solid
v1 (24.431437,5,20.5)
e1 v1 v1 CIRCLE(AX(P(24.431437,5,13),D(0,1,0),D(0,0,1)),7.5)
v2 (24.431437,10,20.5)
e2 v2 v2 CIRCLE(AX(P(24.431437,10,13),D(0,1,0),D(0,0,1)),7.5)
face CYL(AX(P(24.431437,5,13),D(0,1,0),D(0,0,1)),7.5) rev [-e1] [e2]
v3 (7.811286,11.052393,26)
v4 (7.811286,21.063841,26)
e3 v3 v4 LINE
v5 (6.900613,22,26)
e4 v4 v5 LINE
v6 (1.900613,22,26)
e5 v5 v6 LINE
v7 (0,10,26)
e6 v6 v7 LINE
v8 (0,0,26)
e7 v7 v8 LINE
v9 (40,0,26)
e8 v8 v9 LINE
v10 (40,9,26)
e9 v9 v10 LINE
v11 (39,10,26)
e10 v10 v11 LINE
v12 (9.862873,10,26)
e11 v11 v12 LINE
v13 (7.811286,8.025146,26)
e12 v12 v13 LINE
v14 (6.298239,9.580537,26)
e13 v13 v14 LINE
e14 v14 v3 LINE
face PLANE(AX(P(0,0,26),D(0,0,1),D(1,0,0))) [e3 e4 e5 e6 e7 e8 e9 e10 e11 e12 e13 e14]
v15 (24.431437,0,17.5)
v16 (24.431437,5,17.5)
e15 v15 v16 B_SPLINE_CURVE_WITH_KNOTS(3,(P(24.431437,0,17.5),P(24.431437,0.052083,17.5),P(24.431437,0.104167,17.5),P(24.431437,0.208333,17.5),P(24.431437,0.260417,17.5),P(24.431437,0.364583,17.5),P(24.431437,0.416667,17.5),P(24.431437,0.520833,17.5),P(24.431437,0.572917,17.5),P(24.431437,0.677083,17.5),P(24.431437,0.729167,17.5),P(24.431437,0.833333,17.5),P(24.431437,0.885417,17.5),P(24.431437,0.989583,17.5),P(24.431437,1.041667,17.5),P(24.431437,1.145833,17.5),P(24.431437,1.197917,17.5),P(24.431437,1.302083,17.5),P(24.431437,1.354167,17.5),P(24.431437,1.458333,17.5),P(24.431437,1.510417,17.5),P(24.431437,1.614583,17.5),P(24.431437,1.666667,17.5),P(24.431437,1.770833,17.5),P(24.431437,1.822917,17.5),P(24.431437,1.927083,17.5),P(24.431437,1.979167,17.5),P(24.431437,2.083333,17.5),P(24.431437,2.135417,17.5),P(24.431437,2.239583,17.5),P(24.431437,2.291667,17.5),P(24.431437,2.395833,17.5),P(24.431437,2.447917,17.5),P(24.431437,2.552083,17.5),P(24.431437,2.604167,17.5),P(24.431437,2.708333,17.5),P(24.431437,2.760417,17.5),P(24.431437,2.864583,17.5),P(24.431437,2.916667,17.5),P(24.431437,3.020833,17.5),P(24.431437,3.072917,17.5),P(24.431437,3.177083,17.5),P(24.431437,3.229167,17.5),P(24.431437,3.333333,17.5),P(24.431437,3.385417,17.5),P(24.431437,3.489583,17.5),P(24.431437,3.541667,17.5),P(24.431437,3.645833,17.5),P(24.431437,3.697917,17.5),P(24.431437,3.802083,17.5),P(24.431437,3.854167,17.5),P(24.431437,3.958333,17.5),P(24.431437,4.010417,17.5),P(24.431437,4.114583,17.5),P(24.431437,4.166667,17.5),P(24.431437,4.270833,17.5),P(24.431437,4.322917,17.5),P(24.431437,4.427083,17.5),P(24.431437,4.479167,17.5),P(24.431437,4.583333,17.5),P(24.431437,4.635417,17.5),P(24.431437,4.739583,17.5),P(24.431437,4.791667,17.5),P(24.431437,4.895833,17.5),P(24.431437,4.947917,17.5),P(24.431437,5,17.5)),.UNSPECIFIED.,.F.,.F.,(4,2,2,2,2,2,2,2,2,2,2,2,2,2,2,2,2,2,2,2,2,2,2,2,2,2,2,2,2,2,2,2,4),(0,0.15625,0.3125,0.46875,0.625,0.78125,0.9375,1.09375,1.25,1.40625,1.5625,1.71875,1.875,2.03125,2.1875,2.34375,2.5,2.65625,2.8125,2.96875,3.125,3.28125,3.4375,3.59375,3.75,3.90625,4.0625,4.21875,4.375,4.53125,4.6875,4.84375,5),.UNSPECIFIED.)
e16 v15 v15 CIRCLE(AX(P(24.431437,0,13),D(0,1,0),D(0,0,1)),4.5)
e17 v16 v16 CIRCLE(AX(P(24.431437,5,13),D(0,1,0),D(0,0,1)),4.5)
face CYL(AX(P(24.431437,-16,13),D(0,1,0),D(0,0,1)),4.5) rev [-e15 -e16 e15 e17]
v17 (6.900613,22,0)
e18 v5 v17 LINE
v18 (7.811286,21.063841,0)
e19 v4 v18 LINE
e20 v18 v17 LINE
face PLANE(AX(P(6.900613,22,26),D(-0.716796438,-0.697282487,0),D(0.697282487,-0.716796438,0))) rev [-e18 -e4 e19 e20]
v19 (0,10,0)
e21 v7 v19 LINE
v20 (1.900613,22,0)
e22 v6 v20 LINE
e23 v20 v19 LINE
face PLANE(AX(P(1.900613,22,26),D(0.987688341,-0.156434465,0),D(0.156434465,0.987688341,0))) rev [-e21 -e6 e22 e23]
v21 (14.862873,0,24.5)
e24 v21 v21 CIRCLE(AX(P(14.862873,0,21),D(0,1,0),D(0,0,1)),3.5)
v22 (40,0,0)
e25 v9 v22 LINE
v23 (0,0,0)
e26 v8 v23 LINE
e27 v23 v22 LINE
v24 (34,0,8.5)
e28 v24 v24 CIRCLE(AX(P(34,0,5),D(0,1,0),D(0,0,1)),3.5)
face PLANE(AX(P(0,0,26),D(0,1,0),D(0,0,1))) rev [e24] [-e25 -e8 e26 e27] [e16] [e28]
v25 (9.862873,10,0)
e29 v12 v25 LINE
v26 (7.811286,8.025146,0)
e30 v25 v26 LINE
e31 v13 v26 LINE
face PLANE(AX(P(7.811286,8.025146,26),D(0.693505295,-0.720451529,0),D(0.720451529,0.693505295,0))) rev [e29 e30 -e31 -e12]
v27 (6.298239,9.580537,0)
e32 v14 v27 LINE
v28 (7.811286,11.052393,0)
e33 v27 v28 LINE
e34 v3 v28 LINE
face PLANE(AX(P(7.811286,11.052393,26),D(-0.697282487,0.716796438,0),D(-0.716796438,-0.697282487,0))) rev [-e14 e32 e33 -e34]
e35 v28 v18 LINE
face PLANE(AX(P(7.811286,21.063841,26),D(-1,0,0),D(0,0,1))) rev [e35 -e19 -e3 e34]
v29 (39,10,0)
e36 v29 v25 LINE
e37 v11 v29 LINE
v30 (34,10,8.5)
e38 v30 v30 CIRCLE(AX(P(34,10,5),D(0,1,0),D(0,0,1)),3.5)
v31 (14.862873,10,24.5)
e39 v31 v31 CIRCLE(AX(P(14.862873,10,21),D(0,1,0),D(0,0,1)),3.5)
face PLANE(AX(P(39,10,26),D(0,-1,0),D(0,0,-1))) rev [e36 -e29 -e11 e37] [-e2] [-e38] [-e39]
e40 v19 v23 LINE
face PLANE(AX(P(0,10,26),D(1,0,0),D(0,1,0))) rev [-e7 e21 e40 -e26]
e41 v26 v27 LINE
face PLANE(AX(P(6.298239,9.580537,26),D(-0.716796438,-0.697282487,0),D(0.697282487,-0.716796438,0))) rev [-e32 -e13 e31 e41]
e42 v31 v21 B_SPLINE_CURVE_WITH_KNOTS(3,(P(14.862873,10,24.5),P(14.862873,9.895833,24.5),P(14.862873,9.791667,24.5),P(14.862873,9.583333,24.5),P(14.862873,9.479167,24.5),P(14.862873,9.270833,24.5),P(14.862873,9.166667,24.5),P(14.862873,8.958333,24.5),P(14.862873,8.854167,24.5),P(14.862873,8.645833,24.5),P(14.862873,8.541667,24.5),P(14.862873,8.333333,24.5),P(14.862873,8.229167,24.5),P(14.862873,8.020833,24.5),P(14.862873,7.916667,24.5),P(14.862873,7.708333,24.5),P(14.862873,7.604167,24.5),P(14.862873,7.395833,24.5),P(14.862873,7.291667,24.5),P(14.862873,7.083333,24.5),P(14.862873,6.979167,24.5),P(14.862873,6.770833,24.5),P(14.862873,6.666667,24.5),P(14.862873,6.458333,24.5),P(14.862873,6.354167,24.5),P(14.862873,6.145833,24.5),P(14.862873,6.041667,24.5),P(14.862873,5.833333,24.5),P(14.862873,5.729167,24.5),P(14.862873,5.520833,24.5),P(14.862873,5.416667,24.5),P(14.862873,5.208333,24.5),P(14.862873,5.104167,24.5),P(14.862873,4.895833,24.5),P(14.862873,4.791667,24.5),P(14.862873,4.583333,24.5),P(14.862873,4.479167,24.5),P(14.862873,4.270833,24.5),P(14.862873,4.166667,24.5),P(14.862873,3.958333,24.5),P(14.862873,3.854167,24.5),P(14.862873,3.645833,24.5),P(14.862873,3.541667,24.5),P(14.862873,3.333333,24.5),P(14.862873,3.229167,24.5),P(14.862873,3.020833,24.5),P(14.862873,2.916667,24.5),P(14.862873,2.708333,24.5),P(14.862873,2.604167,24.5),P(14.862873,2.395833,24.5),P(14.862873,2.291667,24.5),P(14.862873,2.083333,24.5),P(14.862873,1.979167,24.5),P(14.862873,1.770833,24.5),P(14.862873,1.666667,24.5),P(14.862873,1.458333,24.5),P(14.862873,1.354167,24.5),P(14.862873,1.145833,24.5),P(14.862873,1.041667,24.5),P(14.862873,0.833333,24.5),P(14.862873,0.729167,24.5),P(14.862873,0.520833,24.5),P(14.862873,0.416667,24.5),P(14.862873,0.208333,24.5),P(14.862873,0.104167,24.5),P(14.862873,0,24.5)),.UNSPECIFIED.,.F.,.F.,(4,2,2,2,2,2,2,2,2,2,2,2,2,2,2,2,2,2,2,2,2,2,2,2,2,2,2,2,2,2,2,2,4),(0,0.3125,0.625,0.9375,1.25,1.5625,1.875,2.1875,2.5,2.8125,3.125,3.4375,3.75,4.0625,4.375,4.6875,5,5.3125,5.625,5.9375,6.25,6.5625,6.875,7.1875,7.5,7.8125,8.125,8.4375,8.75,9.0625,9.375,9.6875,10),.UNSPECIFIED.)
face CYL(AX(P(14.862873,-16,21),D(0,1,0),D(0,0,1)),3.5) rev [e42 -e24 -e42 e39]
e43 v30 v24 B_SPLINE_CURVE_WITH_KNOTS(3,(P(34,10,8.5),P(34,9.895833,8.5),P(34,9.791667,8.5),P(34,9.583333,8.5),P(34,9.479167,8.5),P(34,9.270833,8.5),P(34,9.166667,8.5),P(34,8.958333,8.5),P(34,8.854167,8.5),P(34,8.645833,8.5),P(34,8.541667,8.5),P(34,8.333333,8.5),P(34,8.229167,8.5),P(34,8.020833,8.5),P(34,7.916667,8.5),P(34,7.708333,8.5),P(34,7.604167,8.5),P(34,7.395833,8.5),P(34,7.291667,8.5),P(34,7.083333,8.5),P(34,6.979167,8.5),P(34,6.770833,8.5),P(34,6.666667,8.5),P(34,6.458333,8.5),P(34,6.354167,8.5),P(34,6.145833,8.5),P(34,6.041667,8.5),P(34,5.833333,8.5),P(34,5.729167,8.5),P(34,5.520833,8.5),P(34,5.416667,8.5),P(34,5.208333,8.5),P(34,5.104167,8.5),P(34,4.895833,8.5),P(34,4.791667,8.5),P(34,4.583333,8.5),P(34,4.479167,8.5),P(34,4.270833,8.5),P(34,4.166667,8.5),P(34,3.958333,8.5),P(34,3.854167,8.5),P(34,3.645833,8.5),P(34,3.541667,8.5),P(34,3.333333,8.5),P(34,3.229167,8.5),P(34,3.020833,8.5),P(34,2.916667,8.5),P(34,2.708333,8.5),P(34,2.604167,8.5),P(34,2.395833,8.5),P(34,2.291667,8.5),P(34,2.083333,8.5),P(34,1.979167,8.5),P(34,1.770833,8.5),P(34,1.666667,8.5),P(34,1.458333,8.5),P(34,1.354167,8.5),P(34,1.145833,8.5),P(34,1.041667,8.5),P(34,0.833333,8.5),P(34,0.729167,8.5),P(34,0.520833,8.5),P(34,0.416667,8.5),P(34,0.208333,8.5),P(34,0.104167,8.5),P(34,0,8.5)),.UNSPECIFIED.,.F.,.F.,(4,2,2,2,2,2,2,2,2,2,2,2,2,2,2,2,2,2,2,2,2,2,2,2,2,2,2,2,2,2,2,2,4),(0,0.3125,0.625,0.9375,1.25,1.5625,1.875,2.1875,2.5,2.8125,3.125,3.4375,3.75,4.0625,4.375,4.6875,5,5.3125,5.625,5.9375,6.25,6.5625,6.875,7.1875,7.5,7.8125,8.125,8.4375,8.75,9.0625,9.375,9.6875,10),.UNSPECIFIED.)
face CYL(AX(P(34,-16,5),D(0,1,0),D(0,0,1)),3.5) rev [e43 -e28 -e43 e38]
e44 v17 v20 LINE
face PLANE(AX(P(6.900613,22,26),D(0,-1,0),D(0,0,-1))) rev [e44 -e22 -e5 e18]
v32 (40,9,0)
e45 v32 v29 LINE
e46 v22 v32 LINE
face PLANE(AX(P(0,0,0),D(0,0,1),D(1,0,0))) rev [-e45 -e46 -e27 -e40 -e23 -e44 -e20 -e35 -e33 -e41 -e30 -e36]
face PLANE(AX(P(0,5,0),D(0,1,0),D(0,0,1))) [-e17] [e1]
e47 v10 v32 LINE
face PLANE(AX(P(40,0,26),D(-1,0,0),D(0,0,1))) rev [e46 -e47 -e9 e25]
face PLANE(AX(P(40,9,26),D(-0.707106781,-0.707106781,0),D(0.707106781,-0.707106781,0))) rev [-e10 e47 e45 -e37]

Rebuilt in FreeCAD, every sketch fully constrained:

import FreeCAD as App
import Part
import Sketcher

V = App.Vector
Q = App.Units.Quantity


def add_polygon(sketch, points):
    """Adds a closed chain of lines whose ends are joined by coincident constraints."""
    first, n = sketch.GeometryCount, len(points)
    for a, b in zip(points, points[1:] + points[:1]):
        sketch.addGeometry(Part.LineSegment(App.Vector(*a, 0), App.Vector(*b, 0)), False)
    for i in range(n):
        sketch.addConstraint(Sketcher.Constraint("Coincident", first + i, 2, first + (i + 1) % n, 1))

doc = App.newDocument("Part")
body = doc.addObject("PartDesign::Body", "Body")

sketch1 = body.newObject("Sketcher::SketchObject", "Sketch")
sketch1.AttachmentSupport = (doc.getObject("XY_Plane"), [""])
sketch1.MapMode = "FlatFace"
add_polygon(sketch1, [(0, 0), (40, 0), (40, 9), (39, 10), (9.862873, 10), (7.811286, 8.025146), (6.298239, 9.580537), (7.811286, 11.052393), (7.811286, 21.063841), (6.900613, 22), (1.900613, 22), (0, 10)])
sketch1.addConstraint([
    Sketcher.Constraint("Horizontal", 0),
    Sketcher.Constraint("Vertical", 1),
    Sketcher.Constraint("Horizontal", 3),
    Sketcher.Constraint("Vertical", 7),
    Sketcher.Constraint("Horizontal", 9),
    Sketcher.Constraint("Vertical", 11),
    Sketcher.Constraint("Coincident", 11, 2, -1, 1),
    Sketcher.Constraint("Perpendicular", 5, 6),
    Sketcher.Constraint("Perpendicular", 6, 8),
    Sketcher.Constraint("Horizontal", 3, 2, 10, 2),
    Sketcher.Constraint("Vertical", 4, 2, 6, 2),
    Sketcher.Constraint("DistanceX", 0, 1, 0, 2, 40.0),
    Sketcher.Constraint("DistanceX", 9, 2, 9, 1, 5.0),
    Sketcher.Constraint("DistanceY", 1, 1, 1, 2, 9.0),
    Sketcher.Constraint("DistanceY", 11, 2, 11, 1, 10.0),
    Sketcher.Constraint("Angle", 2, Q("135 deg")),
    Sketcher.Constraint("Angle", 10, Q("-99 deg")),
    Sketcher.Constraint("DistanceY", -1, 1, 8, 2, 22.0),
    Sketcher.Constraint("DistanceY", 7, 1, 7, 2, 10.011448),
    Sketcher.Constraint("Distance", 4, 2.847641),
    Sketcher.Constraint("Distance", 5, 2.16992),
    Sketcher.Constraint("Distance", 8, 1.306031),
    Sketcher.Constraint("DistanceX", 3, 2, 3, 1, 29.137127),
])
pad1 = body.newObject("PartDesign::Pad", "Pad")
pad1.Profile = sketch1
pad1.Length = 26

sketch2 = body.newObject("Sketcher::SketchObject", "Sketch001")
sketch2.AttachmentSupport = (doc.getObject("XZ_Plane"), [""])
sketch2.MapMode = "FlatFace"
sketch2.AttachmentOffset = App.Placement(V(0, 0, -10), App.Rotation())
sketch2.addGeometry([
    Part.Circle(V(14.862873, 21, 0), V(0, 0, 1), 3.5),
    Part.Circle(V(24.431437, 13, 0), V(0, 0, 1), 4.5),
    Part.Circle(V(34, 5, 0), V(0, 0, 1), 3.5),
], False)
sketch2.addConstraint([
    Sketcher.Constraint("Equal", 0, 2),
    Sketcher.Constraint("Diameter", 0, 7.0),
    Sketcher.Constraint("Diameter", 1, 9.0),
    Sketcher.Constraint("DistanceY", -1, 1, 0, 3, 21.0),
    Sketcher.Constraint("DistanceY", -1, 1, 1, 3, 13.0),
    Sketcher.Constraint("DistanceX", -1, 1, 2, 3, 34.0),
    Sketcher.Constraint("DistanceY", -1, 1, 2, 3, 5.0),
    Sketcher.Constraint("DistanceX", -1, 1, 0, 3, 14.862873),
    Sketcher.Constraint("DistanceX", -1, 1, 1, 3, 24.431437),
])
pocket1 = body.newObject("PartDesign::Pocket", "Pocket")
pocket1.Profile = sketch2
pocket1.Length = 26
pocket1.Reversed = True

sketch3 = body.newObject("Sketcher::SketchObject", "Sketch002")
sketch3.AttachmentSupport = (doc.getObject("XZ_Plane"), [""])
sketch3.MapMode = "FlatFace"
sketch3.AttachmentOffset = App.Placement(V(0, 0, -10), App.Rotation())
sketch3.addGeometry([
    Part.Circle(V(24.431437, 13, 0), V(0, 0, 1), 7.5),
    Part.Circle(V(24.431437, 13, 0), V(0, 0, 1), 4.5),
], False)
sketch3.addConstraint([
    Sketcher.Constraint("Coincident", 1, 3, 0, 3),
    Sketcher.Constraint("Diameter", 0, 15.0),
    Sketcher.Constraint("Diameter", 1, 9.0),
    Sketcher.Constraint("DistanceY", -1, 1, 0, 3, 13.0),
    Sketcher.Constraint("DistanceX", -1, 1, 0, 3, 24.431437),
])
pocket2 = body.newObject("PartDesign::Pocket", "Pocket001")
pocket2.Profile = sketch3
pocket2.Length = 5
pocket2.Reversed = True

doc.recompute()
